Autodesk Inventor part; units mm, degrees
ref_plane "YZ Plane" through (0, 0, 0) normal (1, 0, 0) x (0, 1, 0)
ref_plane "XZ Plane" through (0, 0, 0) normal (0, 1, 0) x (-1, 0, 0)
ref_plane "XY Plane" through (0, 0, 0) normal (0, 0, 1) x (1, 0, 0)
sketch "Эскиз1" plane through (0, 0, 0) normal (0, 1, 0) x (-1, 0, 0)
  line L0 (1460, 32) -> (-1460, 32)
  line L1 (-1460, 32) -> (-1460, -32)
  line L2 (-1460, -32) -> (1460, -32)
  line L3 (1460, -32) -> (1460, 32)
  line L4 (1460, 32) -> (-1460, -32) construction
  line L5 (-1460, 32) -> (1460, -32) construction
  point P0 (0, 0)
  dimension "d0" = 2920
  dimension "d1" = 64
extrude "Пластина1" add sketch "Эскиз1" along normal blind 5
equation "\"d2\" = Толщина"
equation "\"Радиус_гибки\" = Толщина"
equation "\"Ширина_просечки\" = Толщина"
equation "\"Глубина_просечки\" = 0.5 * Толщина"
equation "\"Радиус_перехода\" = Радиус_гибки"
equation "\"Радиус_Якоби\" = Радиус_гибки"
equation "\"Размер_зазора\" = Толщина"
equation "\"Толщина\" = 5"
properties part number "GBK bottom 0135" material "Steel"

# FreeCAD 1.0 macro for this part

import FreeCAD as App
import Part
import Sketcher
Q = App.Units.Quantity

doc = App.newDocument("Part")
body = doc.addObject("PartDesign::Body", "Body")

sketch1 = body.newObject("Sketcher::SketchObject", "Sketch")
sketch1.AttachmentSupport = (doc.getObject("XZ_Plane"), [""])
sketch1.MapMode = "FlatFace"
sketch1.addGeometry([
    Part.LineSegment(App.Vector(-1460, -32, 0), App.Vector(-1460, 32, 0)),
    Part.LineSegment(App.Vector(-1460, 32, 0), App.Vector(1460, 32, 0)),
    Part.LineSegment(App.Vector(1460, 32, 0), App.Vector(1460, -32, 0)),
    Part.LineSegment(App.Vector(1460, -32, 0), App.Vector(-1460, -32, 0)),
], False)
sketch1.addConstraint([
    Sketcher.Constraint("Coincident", 0, 2, 1, 1),
    Sketcher.Constraint("Coincident", 1, 2, 2, 1),
    Sketcher.Constraint("Coincident", 2, 2, 3, 1),
    Sketcher.Constraint("Coincident", 3, 2, 0, 1),
    Sketcher.Constraint("Vertical", 0),
    Sketcher.Constraint("Horizontal", 1),
    Sketcher.Constraint("Vertical", 2),
    Sketcher.Constraint("Horizontal", 3),
    Sketcher.Constraint("Symmetric", 0, 2, 2, 2, -1, 1),
    Sketcher.Constraint("DistanceX", 1, 1, 1, 2, Q("2920 mm")),
    Sketcher.Constraint("DistanceY", 0, 1, 0, 2, Q("64 mm")),
])
pad1 = body.newObject("PartDesign::Pad", "Pad")
pad1.Profile = sketch1
pad1.Length = 5
pad1.Reversed = True

doc.recompute()
